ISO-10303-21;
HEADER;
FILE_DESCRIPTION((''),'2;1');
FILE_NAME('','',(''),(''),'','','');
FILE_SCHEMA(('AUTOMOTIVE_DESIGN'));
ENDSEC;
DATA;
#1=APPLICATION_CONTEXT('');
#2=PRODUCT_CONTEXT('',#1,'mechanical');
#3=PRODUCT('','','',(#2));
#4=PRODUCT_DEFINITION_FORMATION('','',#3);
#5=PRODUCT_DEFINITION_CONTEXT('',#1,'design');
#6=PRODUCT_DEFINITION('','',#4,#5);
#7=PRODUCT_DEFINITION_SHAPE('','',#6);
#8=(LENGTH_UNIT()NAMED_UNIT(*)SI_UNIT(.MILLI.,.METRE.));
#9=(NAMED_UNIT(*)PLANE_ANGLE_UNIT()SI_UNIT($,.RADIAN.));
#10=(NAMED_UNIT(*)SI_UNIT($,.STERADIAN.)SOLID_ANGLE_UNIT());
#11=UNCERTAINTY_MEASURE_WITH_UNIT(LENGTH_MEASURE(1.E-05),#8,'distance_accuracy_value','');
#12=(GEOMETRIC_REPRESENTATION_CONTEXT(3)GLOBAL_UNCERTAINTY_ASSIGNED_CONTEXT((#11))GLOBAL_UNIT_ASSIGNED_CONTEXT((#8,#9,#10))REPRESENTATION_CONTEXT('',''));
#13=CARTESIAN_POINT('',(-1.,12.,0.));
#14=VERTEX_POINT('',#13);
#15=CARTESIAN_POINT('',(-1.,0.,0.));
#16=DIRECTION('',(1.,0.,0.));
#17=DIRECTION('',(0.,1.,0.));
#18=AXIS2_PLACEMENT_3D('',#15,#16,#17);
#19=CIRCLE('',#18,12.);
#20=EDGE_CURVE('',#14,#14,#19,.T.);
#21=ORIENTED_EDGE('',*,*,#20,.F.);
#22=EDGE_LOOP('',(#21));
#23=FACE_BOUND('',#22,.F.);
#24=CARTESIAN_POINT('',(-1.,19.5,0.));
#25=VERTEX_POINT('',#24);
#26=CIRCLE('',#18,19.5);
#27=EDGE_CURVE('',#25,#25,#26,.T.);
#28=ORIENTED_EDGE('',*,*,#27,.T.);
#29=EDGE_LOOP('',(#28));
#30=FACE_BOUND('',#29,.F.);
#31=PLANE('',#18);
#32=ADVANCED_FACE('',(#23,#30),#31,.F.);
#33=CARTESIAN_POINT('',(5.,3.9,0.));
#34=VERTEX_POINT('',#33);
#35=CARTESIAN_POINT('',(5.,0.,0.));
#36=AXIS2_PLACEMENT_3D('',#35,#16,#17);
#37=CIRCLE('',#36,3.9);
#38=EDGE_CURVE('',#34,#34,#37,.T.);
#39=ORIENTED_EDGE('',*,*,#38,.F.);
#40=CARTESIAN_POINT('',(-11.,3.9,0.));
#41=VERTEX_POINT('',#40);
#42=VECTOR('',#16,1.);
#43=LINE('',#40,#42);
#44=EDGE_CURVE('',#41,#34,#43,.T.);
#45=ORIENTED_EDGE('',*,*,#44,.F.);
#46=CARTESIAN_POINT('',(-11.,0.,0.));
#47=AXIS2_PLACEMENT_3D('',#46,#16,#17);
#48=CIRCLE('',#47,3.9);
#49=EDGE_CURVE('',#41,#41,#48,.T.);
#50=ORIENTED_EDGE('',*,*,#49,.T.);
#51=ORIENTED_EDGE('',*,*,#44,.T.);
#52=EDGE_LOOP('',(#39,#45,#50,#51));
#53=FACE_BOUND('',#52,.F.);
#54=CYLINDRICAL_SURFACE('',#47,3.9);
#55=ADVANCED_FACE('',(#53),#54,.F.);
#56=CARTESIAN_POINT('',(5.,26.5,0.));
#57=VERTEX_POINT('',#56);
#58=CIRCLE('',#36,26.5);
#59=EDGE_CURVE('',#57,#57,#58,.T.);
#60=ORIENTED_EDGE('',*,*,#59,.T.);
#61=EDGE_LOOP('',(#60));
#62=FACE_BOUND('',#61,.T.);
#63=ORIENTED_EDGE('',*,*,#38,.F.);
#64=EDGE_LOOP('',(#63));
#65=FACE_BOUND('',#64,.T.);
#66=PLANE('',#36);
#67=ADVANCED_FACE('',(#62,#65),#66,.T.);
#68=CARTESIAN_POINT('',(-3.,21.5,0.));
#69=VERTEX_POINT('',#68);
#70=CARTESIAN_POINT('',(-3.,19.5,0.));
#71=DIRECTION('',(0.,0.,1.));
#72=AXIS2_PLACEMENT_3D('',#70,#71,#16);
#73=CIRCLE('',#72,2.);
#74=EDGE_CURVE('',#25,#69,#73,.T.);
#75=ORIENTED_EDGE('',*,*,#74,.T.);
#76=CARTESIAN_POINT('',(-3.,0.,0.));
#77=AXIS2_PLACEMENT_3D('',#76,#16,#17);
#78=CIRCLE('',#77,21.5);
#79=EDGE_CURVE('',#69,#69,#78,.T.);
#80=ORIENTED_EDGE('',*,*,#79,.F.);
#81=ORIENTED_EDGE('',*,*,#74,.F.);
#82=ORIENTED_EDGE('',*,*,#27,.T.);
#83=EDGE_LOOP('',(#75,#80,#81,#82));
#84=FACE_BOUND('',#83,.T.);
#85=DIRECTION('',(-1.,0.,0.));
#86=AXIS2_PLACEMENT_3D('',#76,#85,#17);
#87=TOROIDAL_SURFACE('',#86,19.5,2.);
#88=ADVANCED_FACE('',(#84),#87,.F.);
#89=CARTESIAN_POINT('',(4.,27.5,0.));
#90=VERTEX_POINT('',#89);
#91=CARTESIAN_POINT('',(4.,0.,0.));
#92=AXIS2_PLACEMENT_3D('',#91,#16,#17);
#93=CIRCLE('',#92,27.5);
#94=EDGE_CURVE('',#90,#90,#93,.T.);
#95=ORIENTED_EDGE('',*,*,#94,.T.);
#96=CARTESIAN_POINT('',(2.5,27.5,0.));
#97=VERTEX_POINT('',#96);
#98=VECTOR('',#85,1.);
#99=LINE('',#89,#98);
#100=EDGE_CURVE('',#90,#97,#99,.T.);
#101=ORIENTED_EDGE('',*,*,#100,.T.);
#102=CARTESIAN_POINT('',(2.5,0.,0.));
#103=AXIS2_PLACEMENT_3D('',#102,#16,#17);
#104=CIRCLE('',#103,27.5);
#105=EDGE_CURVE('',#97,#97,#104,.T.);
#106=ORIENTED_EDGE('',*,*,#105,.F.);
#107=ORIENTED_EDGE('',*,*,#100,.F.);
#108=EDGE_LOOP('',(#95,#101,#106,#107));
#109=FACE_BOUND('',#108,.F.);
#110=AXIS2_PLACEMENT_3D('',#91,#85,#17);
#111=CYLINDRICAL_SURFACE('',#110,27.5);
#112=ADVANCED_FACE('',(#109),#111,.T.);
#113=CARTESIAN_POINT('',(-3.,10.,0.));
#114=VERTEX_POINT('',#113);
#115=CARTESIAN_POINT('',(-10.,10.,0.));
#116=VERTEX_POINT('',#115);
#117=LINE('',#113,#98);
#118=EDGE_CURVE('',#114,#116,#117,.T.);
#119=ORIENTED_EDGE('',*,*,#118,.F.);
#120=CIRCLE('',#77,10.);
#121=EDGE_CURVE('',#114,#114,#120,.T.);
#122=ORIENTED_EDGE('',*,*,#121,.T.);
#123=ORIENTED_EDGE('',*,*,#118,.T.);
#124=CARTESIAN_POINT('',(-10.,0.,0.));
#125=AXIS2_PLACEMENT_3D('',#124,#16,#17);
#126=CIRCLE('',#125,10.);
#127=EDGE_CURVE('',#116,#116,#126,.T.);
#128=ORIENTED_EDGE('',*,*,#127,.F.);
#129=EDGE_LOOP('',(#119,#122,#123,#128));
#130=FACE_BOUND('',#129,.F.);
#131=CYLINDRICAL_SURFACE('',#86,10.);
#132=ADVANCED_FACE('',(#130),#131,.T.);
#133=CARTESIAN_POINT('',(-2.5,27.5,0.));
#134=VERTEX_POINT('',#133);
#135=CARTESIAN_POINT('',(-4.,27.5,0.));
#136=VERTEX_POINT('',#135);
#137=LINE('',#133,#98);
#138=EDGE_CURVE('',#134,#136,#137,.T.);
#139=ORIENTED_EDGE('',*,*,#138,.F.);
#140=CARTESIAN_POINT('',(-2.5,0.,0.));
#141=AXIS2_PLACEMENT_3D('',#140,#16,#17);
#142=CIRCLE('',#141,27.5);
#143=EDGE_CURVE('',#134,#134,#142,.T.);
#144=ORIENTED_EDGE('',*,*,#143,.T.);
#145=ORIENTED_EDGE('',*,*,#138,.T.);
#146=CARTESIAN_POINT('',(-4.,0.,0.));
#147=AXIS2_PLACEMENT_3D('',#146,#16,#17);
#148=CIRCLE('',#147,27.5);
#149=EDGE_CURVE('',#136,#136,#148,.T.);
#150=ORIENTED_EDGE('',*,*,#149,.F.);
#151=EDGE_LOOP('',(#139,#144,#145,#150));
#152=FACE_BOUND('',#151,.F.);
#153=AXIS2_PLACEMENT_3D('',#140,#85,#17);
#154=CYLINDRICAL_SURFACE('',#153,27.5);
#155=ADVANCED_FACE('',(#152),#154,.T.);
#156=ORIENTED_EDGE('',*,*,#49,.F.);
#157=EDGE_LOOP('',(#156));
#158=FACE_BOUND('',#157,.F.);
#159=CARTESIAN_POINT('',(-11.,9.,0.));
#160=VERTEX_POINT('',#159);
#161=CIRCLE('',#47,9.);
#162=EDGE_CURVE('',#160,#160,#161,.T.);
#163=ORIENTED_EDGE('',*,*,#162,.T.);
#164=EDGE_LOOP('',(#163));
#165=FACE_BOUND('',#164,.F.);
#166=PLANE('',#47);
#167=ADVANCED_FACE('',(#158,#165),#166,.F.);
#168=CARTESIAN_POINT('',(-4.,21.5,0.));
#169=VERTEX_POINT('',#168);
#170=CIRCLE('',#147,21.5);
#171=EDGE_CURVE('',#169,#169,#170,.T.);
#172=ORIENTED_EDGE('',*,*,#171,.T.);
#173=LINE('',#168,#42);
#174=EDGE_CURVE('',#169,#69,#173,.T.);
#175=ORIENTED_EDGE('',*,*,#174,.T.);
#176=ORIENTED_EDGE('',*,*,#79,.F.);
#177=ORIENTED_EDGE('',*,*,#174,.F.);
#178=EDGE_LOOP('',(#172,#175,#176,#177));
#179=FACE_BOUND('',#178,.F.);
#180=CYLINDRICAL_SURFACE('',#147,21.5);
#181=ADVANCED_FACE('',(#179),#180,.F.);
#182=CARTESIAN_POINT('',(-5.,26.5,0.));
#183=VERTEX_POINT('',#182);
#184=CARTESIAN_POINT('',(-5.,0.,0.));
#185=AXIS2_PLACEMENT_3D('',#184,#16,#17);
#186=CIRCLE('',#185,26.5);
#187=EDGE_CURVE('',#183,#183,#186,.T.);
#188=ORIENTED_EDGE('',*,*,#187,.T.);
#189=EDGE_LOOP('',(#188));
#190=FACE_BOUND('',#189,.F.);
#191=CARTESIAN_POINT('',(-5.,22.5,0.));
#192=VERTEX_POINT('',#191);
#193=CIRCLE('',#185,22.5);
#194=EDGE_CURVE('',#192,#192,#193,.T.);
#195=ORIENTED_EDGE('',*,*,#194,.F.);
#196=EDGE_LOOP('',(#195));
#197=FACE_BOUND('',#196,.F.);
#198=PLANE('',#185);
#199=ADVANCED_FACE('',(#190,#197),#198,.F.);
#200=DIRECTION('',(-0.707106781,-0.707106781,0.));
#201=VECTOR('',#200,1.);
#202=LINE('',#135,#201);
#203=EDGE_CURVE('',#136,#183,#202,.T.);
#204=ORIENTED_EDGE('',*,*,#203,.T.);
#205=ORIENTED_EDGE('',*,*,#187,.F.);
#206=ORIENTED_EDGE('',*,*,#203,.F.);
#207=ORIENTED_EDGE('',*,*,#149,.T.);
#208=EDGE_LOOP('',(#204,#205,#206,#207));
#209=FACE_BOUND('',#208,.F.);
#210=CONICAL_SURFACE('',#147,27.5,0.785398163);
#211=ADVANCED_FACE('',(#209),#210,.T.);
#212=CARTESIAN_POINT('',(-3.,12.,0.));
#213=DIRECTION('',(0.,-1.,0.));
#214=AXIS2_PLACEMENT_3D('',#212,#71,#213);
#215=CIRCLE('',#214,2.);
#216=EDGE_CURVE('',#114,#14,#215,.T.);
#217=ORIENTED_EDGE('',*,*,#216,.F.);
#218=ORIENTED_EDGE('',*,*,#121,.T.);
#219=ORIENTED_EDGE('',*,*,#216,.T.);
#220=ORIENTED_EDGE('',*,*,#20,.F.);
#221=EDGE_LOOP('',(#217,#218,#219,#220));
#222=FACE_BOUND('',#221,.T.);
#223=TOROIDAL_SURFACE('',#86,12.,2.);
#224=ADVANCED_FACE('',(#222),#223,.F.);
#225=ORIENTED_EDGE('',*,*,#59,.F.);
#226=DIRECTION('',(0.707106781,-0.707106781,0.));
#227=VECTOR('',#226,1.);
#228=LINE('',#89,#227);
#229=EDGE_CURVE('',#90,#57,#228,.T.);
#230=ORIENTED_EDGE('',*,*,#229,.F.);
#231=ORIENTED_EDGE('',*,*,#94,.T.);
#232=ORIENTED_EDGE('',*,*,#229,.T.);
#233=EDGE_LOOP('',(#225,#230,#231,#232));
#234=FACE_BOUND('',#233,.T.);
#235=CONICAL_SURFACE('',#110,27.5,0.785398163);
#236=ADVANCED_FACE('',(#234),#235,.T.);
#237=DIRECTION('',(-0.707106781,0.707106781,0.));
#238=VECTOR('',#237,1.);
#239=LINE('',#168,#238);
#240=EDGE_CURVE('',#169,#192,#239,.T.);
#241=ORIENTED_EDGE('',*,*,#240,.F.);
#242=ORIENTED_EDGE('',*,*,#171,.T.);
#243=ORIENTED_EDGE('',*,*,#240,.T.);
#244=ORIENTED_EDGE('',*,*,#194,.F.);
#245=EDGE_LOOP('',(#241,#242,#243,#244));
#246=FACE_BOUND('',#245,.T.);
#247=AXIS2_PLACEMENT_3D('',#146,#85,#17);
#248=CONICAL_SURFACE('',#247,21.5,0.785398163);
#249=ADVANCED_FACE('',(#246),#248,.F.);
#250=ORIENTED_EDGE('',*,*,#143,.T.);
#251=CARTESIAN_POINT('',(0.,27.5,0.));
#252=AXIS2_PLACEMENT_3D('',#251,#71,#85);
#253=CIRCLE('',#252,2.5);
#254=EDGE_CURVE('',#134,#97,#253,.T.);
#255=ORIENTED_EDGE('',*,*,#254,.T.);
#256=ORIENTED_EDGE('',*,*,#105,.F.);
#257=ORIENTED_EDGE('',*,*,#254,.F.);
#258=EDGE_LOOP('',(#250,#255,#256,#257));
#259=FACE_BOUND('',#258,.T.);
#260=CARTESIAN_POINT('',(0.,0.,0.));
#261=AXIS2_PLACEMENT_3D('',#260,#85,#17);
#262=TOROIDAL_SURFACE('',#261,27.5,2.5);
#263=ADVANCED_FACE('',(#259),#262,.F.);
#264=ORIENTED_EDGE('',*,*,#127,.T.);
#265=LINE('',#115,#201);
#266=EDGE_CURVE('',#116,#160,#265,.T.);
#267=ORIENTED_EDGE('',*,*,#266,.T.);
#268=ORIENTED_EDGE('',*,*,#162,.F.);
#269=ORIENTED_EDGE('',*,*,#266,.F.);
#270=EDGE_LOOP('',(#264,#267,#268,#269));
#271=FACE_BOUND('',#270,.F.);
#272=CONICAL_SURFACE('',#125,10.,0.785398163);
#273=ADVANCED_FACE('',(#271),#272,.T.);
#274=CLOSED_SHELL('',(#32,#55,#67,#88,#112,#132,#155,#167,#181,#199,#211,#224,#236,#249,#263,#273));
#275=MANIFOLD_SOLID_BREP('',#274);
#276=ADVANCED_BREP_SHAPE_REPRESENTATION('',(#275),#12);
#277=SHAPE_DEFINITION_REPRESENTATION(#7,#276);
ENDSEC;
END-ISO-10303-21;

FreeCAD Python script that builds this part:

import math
import FreeCAD as App
import Part
import Sketcher

V = App.Vector
Q = App.Units.Quantity

doc = App.newDocument("Part")
params = doc.addObject("Spreadsheet::Sheet", "Params")
for row, (alias, value) in enumerate([
    ("sketch1_radius", "2 mm"),
    ("sketch1_radius2", "2.5 mm"),
    ("sketch1_width", "1 mm"),
    ("sketch1_height", "5.1 mm"),
    ("sketch1_height2", "22.6 mm"),
    ("revolution_angle", "360 deg"),
], start=1):
    params.set(f"A{row}", alias)
    params.set(f"B{row}", "=" + value)
    params.setAlias(f"B{row}", alias)

body = doc.addObject("PartDesign::Body", "Body")

sketch1 = doc.addObject("Sketcher::SketchObject", "Sketch")
body.addObject(sketch1)
sketch1.AttachmentSupport = (doc.XY_Plane, [""])
sketch1.MapMode = "FlatFace"
sketch1.addGeometry([
    Part.LineSegment(V(-11, 9, 0), V(-11, 3.9, 0)),
    Part.LineSegment(V(-11, 3.9, 0), V(5, 3.9, 0)),
    Part.LineSegment(V(5, 3.9, 0), V(5, 26.5, 0)),
    Part.LineSegment(V(5, 26.5, 0), V(4, 27.5, 0)),
    Part.LineSegment(V(4, 27.5, 0), V(2.5, 27.5, 0)),
    Part.ArcOfCircle(Part.Circle(V(0, 27.5, 0), V(0, 0, 1), 2.5), math.radians(180), math.radians(360)),
    Part.LineSegment(V(-2.5, 27.5, 0), V(-4, 27.5, 0)),
    Part.LineSegment(V(-4, 27.5, 0), V(-5, 26.5, 0)),
    Part.LineSegment(V(-5, 26.5, 0), V(-5, 22.5, 0)),
    Part.LineSegment(V(-5, 22.5, 0), V(-4, 21.5, 0)),
    Part.LineSegment(V(-4, 21.5, 0), V(-3, 21.5, 0)),
    Part.ArcOfCircle(Part.Circle(V(-3, 19.5, 0), V(0, 0, 1), 2), math.radians(0), math.radians(90)),
    Part.LineSegment(V(-1, 19.5, 0), V(-1, 12, 0)),
    Part.ArcOfCircle(Part.Circle(V(-3, 12, 0), V(0, 0, 1), 2), math.radians(-90), math.radians(0)),
    Part.LineSegment(V(-3, 10, 0), V(-10, 10, 0)),
    Part.LineSegment(V(-10, 10, 0), V(-11, 9, 0)),
], False)
sketch1.addConstraint([
    Sketcher.Constraint("Coincident", 0, 2, 1, 1),
    Sketcher.Constraint("Coincident", 1, 2, 2, 1),
    Sketcher.Constraint("Coincident", 2, 2, 3, 1),
    Sketcher.Constraint("Coincident", 3, 2, 4, 1),
    Sketcher.Constraint("Coincident", 4, 2, 5, 2),
    Sketcher.Constraint("Coincident", 5, 1, 6, 1),
    Sketcher.Constraint("Coincident", 6, 2, 7, 1),
    Sketcher.Constraint("Coincident", 7, 2, 8, 1),
    Sketcher.Constraint("Coincident", 8, 2, 9, 1),
    Sketcher.Constraint("Coincident", 9, 2, 10, 1),
    Sketcher.Constraint("Tangent", 10, 2, 11, 2),
    Sketcher.Constraint("Tangent", 11, 1, 12, 1),
    Sketcher.Constraint("Tangent", 12, 2, 13, 2),
    Sketcher.Constraint("Tangent", 13, 1, 14, 1),
    Sketcher.Constraint("Coincident", 14, 2, 15, 1),
    Sketcher.Constraint("Coincident", 15, 2, 0, 1),
    Sketcher.Constraint("Vertical", 0),
    Sketcher.Constraint("Horizontal", 1),
    Sketcher.Constraint("Vertical", 2),
    Sketcher.Constraint("Horizontal", 4),
    Sketcher.Constraint("Horizontal", 6),
    Sketcher.Constraint("Vertical", 8),
    Sketcher.Constraint("Horizontal", 10),
    Sketcher.Constraint("Vertical", 12),
    Sketcher.Constraint("Horizontal", 14),
    Sketcher.Constraint("Equal", 11, 13),
    Sketcher.Constraint("Symmetric", 4, 2, 5, 1, -2),
    Sketcher.Constraint("Symmetric", 2, 2, 7, 2, -2),
    Sketcher.Constraint("Perpendicular", 3, 7),
    Sketcher.Constraint("Perpendicular", 7, 9),
    Sketcher.Constraint("Perpendicular", 9, 15),
    Sketcher.Constraint("Horizontal", 5, 3, 3, 2),
    Sketcher.Constraint("Vertical", 6, 2, 9, 2),
    Sketcher.Constraint("Equal", 4, 6),
    Sketcher.Constraint("Equal", 9, 15),
    Sketcher.Constraint("Radius", 11, Q("2 mm")),
    Sketcher.Constraint("Radius", 5, Q("2.5 mm")),
    Sketcher.Constraint("DistanceX", 10, 1, 10, 2, Q("1 mm")),
    Sketcher.Constraint("DistanceX", -1, 1, 1, 2, Q("5 mm")),
    Sketcher.Constraint("DistanceX", 11, 1, -1, 1, Q("1 mm")),
    Sketcher.Constraint("DistanceY", -1, 1, 13, 1, Q("10 mm")),
    Sketcher.Constraint("DistanceX", 14, 2, -1, 1, Q("10 mm")),
    Sketcher.Constraint("DistanceY", 8, 2, 6, 2, Q("5 mm")),
    Sketcher.Constraint("DistanceY", 0, 2, 0, 1, Q("5.1 mm")),
    Sketcher.Constraint("DistanceY", 2, 1, 2, 2, Q("22.6 mm")),
])
sketch1.setExpression("Constraints[35]", "Params.sketch1_radius")
sketch1.setExpression("Constraints[36]", "Params.sketch1_radius2")
sketch1.setExpression("Constraints[37]", "Params.sketch1_width")
sketch1.setExpression("Constraints[43]", "Params.sketch1_height")
sketch1.setExpression("Constraints[44]", "Params.sketch1_height2")
revolution = doc.addObject("PartDesign::Revolution", "Revolution")
body.addObject(revolution)
revolution.Profile = sketch1
revolution.ReferenceAxis = (sketch1, ["H_Axis"])
revolution.setExpression("Angle", "Params.revolution_angle")

doc.recompute()
